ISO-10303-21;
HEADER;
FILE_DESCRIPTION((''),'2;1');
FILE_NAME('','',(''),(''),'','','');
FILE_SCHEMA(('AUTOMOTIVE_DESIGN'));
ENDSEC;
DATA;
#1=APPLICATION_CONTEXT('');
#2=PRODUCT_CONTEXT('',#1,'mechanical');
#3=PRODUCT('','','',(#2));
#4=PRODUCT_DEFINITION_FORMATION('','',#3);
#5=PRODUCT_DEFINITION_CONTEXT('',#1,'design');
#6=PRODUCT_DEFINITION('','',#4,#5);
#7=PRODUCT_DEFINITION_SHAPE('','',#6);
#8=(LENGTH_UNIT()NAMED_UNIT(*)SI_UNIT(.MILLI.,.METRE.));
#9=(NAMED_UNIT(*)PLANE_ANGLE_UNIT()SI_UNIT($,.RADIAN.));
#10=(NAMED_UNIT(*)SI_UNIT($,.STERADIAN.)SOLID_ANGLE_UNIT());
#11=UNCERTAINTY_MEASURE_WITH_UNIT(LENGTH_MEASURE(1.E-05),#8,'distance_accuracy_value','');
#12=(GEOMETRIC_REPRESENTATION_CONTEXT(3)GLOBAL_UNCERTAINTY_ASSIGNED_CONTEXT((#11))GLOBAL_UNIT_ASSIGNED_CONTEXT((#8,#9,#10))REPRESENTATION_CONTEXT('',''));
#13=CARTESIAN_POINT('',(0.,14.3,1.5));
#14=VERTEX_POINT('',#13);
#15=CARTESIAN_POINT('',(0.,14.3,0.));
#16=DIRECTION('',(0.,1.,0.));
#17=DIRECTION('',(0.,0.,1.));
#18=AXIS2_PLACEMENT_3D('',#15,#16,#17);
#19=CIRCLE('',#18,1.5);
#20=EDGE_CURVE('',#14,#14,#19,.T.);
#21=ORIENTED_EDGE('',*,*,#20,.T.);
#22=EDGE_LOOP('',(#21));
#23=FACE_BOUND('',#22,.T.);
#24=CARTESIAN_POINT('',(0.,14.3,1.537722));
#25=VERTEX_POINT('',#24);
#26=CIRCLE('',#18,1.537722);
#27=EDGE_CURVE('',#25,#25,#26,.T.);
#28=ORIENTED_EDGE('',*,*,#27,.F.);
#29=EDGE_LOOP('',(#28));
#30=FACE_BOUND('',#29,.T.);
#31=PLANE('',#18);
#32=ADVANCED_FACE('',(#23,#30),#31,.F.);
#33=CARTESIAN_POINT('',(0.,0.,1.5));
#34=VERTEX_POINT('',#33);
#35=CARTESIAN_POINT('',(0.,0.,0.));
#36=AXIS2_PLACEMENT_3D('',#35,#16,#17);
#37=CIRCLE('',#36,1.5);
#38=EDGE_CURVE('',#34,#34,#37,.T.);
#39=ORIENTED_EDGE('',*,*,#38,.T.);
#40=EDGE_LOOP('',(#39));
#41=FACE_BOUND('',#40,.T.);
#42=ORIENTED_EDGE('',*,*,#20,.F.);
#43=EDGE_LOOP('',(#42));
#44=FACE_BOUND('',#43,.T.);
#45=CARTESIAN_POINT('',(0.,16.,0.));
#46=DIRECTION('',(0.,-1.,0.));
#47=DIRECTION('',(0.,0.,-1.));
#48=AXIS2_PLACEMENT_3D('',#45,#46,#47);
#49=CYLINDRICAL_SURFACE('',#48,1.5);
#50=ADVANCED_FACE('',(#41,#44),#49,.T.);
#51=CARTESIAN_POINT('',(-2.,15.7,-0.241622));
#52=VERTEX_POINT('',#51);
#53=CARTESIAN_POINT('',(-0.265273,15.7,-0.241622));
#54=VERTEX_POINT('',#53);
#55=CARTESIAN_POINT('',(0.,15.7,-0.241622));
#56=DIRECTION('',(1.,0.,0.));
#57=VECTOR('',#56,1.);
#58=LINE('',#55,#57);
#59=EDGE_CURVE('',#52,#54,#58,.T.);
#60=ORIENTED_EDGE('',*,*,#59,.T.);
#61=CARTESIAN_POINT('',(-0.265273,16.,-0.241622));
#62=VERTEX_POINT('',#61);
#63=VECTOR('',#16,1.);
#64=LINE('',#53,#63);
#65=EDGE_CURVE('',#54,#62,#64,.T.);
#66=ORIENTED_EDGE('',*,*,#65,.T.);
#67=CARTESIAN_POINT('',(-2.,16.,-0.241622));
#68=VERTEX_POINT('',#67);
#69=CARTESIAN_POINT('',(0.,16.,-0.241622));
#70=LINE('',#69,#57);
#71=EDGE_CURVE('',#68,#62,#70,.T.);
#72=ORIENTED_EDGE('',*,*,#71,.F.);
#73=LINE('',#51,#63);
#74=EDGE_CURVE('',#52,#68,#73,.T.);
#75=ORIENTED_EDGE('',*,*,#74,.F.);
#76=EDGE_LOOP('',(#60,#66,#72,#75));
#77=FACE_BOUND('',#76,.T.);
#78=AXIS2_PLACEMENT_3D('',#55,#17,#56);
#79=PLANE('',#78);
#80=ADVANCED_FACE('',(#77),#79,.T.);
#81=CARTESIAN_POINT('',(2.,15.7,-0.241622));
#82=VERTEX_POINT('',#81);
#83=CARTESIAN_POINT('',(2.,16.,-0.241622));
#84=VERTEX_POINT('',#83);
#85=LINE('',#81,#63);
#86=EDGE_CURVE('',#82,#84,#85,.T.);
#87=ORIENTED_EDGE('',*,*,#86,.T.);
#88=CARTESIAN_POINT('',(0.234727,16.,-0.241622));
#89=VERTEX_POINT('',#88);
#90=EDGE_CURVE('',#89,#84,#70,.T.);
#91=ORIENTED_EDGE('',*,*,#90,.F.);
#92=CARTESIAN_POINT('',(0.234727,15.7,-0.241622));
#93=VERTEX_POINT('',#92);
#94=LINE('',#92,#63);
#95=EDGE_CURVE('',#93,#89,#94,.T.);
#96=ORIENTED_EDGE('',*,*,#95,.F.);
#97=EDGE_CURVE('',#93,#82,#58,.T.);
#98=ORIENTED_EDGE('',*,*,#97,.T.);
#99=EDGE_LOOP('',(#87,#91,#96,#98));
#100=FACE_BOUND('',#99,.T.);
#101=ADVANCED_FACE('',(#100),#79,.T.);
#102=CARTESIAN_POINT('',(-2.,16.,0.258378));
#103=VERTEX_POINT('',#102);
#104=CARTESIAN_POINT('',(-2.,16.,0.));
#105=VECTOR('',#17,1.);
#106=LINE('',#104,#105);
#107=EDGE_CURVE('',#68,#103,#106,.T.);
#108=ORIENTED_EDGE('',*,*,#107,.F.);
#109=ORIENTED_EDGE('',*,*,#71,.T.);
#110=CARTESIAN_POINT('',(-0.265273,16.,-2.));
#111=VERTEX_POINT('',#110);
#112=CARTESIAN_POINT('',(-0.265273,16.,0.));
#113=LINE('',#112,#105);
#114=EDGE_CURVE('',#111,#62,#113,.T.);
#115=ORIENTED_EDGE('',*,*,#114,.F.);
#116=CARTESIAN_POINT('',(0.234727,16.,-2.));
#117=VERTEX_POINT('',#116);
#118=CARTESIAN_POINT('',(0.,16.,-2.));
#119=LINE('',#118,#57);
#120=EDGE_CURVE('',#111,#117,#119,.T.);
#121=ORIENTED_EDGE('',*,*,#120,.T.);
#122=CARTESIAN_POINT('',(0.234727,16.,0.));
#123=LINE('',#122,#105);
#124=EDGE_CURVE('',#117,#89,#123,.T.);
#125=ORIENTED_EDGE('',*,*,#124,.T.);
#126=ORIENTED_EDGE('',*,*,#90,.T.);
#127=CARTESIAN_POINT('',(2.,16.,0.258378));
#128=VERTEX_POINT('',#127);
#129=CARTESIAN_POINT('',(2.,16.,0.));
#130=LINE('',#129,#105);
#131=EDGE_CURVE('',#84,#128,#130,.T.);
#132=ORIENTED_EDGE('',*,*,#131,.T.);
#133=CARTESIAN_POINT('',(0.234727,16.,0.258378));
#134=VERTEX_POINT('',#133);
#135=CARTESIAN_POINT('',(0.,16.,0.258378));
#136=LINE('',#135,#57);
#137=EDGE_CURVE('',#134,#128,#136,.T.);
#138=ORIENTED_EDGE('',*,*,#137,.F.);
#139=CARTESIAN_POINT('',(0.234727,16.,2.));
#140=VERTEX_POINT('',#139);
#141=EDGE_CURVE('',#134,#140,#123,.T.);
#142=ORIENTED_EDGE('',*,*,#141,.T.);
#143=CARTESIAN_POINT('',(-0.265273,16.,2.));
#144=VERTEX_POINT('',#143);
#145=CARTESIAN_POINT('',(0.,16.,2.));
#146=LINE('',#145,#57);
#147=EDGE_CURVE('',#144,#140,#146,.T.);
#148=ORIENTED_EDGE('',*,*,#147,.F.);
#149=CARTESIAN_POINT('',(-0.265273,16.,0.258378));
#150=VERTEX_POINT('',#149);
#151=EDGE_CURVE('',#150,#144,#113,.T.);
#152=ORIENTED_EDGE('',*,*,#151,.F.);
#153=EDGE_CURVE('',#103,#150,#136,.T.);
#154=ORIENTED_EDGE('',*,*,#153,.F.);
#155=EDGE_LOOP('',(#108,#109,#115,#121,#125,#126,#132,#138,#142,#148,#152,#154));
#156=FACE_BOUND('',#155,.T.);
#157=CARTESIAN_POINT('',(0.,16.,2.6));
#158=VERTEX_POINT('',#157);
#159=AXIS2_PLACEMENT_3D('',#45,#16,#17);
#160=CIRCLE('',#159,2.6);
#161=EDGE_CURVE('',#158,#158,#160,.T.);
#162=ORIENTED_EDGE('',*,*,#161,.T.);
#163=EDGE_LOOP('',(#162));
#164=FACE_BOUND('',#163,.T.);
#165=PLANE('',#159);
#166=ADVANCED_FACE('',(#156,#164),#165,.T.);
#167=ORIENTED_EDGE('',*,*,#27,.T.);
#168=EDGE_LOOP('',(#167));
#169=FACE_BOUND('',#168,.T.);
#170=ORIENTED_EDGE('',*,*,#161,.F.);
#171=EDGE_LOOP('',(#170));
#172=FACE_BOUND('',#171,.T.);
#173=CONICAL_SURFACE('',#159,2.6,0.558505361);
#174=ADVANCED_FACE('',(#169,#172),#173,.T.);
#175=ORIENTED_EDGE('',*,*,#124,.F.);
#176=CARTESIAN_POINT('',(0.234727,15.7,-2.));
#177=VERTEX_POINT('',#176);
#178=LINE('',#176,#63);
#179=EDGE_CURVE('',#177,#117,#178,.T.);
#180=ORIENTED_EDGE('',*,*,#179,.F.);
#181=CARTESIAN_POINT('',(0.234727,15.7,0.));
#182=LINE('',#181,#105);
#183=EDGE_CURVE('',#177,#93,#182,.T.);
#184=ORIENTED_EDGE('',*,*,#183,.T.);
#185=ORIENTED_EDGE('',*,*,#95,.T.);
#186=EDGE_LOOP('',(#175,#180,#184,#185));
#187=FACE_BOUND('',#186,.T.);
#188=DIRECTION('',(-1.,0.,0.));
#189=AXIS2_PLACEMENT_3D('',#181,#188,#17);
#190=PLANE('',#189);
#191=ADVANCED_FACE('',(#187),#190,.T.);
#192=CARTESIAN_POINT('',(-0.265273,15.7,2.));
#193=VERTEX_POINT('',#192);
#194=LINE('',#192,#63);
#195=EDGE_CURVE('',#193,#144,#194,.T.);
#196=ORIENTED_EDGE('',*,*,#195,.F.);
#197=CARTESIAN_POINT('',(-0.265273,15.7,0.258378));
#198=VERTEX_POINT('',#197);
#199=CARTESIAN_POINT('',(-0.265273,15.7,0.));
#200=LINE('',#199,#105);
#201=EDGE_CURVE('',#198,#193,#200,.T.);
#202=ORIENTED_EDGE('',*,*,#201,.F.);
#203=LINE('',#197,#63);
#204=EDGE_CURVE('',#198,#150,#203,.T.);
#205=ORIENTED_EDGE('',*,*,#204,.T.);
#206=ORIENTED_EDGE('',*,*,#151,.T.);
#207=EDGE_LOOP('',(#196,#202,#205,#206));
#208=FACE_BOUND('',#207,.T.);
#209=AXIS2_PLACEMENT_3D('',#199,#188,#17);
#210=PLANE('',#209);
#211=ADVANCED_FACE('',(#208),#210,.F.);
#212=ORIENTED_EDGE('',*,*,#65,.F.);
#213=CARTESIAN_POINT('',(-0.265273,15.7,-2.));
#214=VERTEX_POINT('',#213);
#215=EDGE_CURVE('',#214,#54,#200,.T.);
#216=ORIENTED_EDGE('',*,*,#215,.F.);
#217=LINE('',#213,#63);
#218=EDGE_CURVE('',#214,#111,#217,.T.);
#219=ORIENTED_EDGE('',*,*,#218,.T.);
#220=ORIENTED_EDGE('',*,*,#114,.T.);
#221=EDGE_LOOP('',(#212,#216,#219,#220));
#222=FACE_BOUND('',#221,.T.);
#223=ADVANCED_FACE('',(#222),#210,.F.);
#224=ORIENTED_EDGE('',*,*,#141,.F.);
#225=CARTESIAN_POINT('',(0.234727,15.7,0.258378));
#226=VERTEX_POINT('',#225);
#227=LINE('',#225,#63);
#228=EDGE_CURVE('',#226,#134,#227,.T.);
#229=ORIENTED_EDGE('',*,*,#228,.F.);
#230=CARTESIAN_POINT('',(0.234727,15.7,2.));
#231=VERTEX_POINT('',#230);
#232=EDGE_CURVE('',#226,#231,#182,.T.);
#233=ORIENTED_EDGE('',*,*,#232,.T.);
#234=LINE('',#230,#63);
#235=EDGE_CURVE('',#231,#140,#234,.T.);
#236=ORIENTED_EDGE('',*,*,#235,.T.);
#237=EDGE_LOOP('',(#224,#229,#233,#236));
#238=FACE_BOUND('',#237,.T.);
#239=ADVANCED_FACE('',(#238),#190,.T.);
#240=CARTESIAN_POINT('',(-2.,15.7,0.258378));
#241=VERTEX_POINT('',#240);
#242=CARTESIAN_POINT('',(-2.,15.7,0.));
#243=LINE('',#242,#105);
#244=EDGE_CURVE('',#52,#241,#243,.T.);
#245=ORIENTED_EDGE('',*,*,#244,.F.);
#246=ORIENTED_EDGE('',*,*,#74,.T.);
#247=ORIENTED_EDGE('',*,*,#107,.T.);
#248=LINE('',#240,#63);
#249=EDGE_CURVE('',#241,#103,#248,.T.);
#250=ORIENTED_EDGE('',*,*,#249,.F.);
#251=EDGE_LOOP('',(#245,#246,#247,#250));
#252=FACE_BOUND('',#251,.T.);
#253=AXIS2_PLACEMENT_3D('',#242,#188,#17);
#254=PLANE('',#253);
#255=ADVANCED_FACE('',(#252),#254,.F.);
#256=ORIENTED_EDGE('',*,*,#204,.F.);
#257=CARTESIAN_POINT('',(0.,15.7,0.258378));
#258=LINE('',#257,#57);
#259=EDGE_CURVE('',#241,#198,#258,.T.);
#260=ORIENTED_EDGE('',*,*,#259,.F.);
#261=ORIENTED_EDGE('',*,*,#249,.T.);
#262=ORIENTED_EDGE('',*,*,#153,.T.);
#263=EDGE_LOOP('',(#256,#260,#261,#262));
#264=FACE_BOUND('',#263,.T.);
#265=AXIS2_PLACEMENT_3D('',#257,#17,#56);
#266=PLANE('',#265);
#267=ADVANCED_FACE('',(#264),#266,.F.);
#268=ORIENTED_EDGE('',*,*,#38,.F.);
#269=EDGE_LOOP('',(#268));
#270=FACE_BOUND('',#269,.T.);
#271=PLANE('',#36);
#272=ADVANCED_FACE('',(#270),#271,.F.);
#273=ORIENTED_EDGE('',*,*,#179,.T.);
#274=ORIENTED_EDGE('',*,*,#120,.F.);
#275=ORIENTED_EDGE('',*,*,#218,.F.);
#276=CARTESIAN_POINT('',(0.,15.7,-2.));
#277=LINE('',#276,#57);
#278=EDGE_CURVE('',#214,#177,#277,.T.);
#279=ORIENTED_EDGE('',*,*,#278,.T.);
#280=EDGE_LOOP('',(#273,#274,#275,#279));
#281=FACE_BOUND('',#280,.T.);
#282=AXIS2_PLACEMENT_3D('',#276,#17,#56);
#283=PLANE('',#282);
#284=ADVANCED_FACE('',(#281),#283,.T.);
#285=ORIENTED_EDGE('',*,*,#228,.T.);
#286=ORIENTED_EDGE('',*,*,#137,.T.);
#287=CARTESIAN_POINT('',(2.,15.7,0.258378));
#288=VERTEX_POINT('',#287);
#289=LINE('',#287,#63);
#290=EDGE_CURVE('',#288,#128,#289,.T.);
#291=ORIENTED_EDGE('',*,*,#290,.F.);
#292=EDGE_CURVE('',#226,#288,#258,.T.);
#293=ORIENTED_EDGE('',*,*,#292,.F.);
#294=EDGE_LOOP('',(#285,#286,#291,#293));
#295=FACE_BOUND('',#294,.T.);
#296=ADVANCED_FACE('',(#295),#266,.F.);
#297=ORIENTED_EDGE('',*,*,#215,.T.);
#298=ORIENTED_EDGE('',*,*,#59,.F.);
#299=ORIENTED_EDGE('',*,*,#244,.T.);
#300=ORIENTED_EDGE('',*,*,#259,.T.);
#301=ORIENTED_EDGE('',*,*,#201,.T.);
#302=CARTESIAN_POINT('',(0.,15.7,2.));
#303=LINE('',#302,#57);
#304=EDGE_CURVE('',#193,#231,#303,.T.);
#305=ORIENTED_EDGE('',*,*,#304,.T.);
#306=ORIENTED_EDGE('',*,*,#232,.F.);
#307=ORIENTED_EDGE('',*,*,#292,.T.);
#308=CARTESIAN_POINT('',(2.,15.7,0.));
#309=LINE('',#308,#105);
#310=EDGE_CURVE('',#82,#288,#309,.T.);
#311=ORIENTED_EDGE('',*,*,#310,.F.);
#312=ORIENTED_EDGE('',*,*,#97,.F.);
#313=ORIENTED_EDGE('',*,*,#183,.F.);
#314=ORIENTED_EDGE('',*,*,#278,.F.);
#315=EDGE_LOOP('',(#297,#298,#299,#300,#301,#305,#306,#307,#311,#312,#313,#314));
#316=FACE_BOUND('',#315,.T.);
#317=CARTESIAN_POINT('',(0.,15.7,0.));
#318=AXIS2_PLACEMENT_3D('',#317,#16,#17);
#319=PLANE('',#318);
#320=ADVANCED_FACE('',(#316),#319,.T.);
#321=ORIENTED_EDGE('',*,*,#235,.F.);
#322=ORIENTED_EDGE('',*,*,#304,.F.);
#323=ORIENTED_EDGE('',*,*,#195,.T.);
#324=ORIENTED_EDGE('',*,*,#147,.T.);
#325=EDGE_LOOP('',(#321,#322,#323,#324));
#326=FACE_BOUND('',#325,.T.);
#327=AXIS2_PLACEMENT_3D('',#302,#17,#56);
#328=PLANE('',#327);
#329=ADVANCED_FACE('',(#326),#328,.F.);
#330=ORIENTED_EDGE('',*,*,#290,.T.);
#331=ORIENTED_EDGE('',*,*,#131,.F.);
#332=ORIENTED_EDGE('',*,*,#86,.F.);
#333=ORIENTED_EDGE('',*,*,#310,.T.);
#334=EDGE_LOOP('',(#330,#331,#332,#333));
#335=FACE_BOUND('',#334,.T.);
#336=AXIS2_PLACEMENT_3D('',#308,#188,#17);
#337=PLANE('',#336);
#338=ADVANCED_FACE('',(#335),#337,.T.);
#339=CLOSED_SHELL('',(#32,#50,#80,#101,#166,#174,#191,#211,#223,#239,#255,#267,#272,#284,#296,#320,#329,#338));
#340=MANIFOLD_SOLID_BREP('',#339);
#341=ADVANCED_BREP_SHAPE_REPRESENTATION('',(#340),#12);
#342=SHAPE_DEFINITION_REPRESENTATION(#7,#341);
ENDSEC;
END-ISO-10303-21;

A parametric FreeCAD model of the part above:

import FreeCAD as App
import Part
import Sketcher
from FreeCAD import Vector

doc = App.newDocument("Part")
body = doc.addObject("PartDesign::Body", "Body")

# Sketch on XZ plane
sketch1 = doc.addObject("Sketcher::SketchObject", "Sketch")
body.addObject(sketch1)
sketch1.AttachmentSupport = (doc.XZ_Plane, [""])
sketch1.MapMode = "FlatFace"
sketch1.addGeometry(Part.Circle(Vector(0, 0, 0), Vector(0, 0, 1), 1.5), False)
sketch1.addConstraint([
    Sketcher.Constraint("Coincident", 0, 3, -1, 1),
    Sketcher.Constraint("Diameter", 0, 3.0),
])
pad1 = doc.addObject("PartDesign::Pad", "Pad")
body.addObject(pad1)
pad1.Profile = sketch1
pad1.Length = 16
pad1.Reversed = True

# Sketch on XZ plane
sketch2 = doc.addObject("Sketcher::SketchObject", "Sketch001")
body.addObject(sketch2)
sketch2.AttachmentSupport = (doc.XZ_Plane, [""])
sketch2.MapMode = "FlatFace"
sketch2.AttachmentOffset = App.Placement(Vector(0, 0, -16), App.Rotation())
sketch2.addGeometry(Part.Circle(Vector(0, 0, 0), Vector(0, 0, 1), 2.6), False)
sketch2.addConstraint([
    Sketcher.Constraint("Coincident", 0, 3, -1, 1),
    Sketcher.Constraint("Diameter", 0, 5.2),
])
pad2 = doc.addObject("PartDesign::Pad", "Pad001")
body.addObject(pad2)
pad2.Profile = sketch2
pad2.Length = 1.7
pad2.TaperAngle = -32

# Sketch on XZ plane
sketch3 = doc.addObject("Sketcher::SketchObject", "Sketch002")
body.addObject(sketch3)
sketch3.AttachmentSupport = (doc.XZ_Plane, [""])
sketch3.MapMode = "FlatFace"
sketch3.AttachmentOffset = App.Placement(Vector(0, 0, -16), App.Rotation())
sketch3.addGeometry([
    Part.LineSegment(Vector(-0.265273, -2, 0), Vector(-0.265273, -0.241622, 0)),  # 0
    Part.LineSegment(Vector(-0.265273, -0.241622, 0), Vector(-2, -0.241622, 0)),  # 1
    Part.LineSegment(Vector(-2, -0.241622, 0), Vector(-2, 0.258378, 0)),  # 2
    Part.LineSegment(Vector(-2, 0.258378, 0), Vector(-0.265273, 0.258378, 0)),  # 3
    Part.LineSegment(Vector(-0.265273, 0.258378, 0), Vector(-0.265273, 2, 0)),  # 4
    Part.LineSegment(Vector(-0.265273, 2, 0), Vector(0.234727, 2, 0)),  # 5
    Part.LineSegment(Vector(0.234727, 2, 0), Vector(0.234727, 0.258378, 0)),  # 6
    Part.LineSegment(Vector(0.234727, 0.258378, 0), Vector(2, 0.258378, 0)),  # 7
    Part.LineSegment(Vector(2, 0.258378, 0), Vector(2, -0.241622, 0)),  # 8
    Part.LineSegment(Vector(2, -0.241622, 0), Vector(0.234727, -0.241622, 0)),  # 9
    Part.LineSegment(Vector(0.234727, -0.241622, 0), Vector(0.234727, -2, 0)),  # 10
    Part.LineSegment(Vector(0.234727, -2, 0), Vector(-0.265273, -2, 0)),  # 11
], False)
sketch3.addConstraint([
    Sketcher.Constraint("Coincident", 0, 2, 1, 1),
    Sketcher.Constraint("Coincident", 1, 2, 2, 1),
    Sketcher.Constraint("Coincident", 2, 2, 3, 1),
    Sketcher.Constraint("Coincident", 3, 2, 4, 1),
    Sketcher.Constraint("Coincident", 4, 2, 5, 1),
    Sketcher.Constraint("Coincident", 5, 2, 6, 1),
    Sketcher.Constraint("Coincident", 6, 2, 7, 1),
    Sketcher.Constraint("Coincident", 7, 2, 8, 1),
    Sketcher.Constraint("Coincident", 8, 2, 9, 1),
    Sketcher.Constraint("Coincident", 9, 2, 10, 1),
    Sketcher.Constraint("Coincident", 10, 2, 11, 1),
    Sketcher.Constraint("Coincident", 11, 2, 0, 1),
    Sketcher.Constraint("Vertical", 0),
    Sketcher.Constraint("Horizontal", 1),
    Sketcher.Constraint("Vertical", 2),
    Sketcher.Constraint("Horizontal", 3),
    Sketcher.Constraint("Vertical", 4),
    Sketcher.Constraint("Horizontal", 5),
    Sketcher.Constraint("Vertical", 6),
    Sketcher.Constraint("Horizontal", 7),
    Sketcher.Constraint("Vertical", 8),
    Sketcher.Constraint("Horizontal", 9),
    Sketcher.Constraint("Vertical", 10),
    Sketcher.Constraint("Horizontal", 11),
    Sketcher.Constraint("Symmetric", 2, 2, 7, 2, -2),
    Sketcher.Constraint("Symmetric", 5, 2, 10, 2, -1),
    Sketcher.Constraint("Horizontal", 1, 2, 8, 2),
    Sketcher.Constraint("Vertical", 0, 2, 3, 2),
    Sketcher.Constraint("Equal", 11, 2),
    Sketcher.Constraint("DistanceX", 5, 1, 5, 2, 0.5),
    Sketcher.Constraint("DistanceX", 1, 2, -1, 1, 2.0),
    Sketcher.Constraint("DistanceY", -1, 1, 4, 2, 2.0),
    Sketcher.Constraint("DistanceY", 0, 1, 0, 2, 1.758378),
    Sketcher.Constraint("DistanceX", 1, 2, 1, 1, 1.734727),
])
pocket1 = doc.addObject("PartDesign::Pocket", "Pocket")
body.addObject(pocket1)
pocket1.Profile = sketch3
pocket1.Length = 0.3
pocket1.Reversed = True

doc.recompute()
